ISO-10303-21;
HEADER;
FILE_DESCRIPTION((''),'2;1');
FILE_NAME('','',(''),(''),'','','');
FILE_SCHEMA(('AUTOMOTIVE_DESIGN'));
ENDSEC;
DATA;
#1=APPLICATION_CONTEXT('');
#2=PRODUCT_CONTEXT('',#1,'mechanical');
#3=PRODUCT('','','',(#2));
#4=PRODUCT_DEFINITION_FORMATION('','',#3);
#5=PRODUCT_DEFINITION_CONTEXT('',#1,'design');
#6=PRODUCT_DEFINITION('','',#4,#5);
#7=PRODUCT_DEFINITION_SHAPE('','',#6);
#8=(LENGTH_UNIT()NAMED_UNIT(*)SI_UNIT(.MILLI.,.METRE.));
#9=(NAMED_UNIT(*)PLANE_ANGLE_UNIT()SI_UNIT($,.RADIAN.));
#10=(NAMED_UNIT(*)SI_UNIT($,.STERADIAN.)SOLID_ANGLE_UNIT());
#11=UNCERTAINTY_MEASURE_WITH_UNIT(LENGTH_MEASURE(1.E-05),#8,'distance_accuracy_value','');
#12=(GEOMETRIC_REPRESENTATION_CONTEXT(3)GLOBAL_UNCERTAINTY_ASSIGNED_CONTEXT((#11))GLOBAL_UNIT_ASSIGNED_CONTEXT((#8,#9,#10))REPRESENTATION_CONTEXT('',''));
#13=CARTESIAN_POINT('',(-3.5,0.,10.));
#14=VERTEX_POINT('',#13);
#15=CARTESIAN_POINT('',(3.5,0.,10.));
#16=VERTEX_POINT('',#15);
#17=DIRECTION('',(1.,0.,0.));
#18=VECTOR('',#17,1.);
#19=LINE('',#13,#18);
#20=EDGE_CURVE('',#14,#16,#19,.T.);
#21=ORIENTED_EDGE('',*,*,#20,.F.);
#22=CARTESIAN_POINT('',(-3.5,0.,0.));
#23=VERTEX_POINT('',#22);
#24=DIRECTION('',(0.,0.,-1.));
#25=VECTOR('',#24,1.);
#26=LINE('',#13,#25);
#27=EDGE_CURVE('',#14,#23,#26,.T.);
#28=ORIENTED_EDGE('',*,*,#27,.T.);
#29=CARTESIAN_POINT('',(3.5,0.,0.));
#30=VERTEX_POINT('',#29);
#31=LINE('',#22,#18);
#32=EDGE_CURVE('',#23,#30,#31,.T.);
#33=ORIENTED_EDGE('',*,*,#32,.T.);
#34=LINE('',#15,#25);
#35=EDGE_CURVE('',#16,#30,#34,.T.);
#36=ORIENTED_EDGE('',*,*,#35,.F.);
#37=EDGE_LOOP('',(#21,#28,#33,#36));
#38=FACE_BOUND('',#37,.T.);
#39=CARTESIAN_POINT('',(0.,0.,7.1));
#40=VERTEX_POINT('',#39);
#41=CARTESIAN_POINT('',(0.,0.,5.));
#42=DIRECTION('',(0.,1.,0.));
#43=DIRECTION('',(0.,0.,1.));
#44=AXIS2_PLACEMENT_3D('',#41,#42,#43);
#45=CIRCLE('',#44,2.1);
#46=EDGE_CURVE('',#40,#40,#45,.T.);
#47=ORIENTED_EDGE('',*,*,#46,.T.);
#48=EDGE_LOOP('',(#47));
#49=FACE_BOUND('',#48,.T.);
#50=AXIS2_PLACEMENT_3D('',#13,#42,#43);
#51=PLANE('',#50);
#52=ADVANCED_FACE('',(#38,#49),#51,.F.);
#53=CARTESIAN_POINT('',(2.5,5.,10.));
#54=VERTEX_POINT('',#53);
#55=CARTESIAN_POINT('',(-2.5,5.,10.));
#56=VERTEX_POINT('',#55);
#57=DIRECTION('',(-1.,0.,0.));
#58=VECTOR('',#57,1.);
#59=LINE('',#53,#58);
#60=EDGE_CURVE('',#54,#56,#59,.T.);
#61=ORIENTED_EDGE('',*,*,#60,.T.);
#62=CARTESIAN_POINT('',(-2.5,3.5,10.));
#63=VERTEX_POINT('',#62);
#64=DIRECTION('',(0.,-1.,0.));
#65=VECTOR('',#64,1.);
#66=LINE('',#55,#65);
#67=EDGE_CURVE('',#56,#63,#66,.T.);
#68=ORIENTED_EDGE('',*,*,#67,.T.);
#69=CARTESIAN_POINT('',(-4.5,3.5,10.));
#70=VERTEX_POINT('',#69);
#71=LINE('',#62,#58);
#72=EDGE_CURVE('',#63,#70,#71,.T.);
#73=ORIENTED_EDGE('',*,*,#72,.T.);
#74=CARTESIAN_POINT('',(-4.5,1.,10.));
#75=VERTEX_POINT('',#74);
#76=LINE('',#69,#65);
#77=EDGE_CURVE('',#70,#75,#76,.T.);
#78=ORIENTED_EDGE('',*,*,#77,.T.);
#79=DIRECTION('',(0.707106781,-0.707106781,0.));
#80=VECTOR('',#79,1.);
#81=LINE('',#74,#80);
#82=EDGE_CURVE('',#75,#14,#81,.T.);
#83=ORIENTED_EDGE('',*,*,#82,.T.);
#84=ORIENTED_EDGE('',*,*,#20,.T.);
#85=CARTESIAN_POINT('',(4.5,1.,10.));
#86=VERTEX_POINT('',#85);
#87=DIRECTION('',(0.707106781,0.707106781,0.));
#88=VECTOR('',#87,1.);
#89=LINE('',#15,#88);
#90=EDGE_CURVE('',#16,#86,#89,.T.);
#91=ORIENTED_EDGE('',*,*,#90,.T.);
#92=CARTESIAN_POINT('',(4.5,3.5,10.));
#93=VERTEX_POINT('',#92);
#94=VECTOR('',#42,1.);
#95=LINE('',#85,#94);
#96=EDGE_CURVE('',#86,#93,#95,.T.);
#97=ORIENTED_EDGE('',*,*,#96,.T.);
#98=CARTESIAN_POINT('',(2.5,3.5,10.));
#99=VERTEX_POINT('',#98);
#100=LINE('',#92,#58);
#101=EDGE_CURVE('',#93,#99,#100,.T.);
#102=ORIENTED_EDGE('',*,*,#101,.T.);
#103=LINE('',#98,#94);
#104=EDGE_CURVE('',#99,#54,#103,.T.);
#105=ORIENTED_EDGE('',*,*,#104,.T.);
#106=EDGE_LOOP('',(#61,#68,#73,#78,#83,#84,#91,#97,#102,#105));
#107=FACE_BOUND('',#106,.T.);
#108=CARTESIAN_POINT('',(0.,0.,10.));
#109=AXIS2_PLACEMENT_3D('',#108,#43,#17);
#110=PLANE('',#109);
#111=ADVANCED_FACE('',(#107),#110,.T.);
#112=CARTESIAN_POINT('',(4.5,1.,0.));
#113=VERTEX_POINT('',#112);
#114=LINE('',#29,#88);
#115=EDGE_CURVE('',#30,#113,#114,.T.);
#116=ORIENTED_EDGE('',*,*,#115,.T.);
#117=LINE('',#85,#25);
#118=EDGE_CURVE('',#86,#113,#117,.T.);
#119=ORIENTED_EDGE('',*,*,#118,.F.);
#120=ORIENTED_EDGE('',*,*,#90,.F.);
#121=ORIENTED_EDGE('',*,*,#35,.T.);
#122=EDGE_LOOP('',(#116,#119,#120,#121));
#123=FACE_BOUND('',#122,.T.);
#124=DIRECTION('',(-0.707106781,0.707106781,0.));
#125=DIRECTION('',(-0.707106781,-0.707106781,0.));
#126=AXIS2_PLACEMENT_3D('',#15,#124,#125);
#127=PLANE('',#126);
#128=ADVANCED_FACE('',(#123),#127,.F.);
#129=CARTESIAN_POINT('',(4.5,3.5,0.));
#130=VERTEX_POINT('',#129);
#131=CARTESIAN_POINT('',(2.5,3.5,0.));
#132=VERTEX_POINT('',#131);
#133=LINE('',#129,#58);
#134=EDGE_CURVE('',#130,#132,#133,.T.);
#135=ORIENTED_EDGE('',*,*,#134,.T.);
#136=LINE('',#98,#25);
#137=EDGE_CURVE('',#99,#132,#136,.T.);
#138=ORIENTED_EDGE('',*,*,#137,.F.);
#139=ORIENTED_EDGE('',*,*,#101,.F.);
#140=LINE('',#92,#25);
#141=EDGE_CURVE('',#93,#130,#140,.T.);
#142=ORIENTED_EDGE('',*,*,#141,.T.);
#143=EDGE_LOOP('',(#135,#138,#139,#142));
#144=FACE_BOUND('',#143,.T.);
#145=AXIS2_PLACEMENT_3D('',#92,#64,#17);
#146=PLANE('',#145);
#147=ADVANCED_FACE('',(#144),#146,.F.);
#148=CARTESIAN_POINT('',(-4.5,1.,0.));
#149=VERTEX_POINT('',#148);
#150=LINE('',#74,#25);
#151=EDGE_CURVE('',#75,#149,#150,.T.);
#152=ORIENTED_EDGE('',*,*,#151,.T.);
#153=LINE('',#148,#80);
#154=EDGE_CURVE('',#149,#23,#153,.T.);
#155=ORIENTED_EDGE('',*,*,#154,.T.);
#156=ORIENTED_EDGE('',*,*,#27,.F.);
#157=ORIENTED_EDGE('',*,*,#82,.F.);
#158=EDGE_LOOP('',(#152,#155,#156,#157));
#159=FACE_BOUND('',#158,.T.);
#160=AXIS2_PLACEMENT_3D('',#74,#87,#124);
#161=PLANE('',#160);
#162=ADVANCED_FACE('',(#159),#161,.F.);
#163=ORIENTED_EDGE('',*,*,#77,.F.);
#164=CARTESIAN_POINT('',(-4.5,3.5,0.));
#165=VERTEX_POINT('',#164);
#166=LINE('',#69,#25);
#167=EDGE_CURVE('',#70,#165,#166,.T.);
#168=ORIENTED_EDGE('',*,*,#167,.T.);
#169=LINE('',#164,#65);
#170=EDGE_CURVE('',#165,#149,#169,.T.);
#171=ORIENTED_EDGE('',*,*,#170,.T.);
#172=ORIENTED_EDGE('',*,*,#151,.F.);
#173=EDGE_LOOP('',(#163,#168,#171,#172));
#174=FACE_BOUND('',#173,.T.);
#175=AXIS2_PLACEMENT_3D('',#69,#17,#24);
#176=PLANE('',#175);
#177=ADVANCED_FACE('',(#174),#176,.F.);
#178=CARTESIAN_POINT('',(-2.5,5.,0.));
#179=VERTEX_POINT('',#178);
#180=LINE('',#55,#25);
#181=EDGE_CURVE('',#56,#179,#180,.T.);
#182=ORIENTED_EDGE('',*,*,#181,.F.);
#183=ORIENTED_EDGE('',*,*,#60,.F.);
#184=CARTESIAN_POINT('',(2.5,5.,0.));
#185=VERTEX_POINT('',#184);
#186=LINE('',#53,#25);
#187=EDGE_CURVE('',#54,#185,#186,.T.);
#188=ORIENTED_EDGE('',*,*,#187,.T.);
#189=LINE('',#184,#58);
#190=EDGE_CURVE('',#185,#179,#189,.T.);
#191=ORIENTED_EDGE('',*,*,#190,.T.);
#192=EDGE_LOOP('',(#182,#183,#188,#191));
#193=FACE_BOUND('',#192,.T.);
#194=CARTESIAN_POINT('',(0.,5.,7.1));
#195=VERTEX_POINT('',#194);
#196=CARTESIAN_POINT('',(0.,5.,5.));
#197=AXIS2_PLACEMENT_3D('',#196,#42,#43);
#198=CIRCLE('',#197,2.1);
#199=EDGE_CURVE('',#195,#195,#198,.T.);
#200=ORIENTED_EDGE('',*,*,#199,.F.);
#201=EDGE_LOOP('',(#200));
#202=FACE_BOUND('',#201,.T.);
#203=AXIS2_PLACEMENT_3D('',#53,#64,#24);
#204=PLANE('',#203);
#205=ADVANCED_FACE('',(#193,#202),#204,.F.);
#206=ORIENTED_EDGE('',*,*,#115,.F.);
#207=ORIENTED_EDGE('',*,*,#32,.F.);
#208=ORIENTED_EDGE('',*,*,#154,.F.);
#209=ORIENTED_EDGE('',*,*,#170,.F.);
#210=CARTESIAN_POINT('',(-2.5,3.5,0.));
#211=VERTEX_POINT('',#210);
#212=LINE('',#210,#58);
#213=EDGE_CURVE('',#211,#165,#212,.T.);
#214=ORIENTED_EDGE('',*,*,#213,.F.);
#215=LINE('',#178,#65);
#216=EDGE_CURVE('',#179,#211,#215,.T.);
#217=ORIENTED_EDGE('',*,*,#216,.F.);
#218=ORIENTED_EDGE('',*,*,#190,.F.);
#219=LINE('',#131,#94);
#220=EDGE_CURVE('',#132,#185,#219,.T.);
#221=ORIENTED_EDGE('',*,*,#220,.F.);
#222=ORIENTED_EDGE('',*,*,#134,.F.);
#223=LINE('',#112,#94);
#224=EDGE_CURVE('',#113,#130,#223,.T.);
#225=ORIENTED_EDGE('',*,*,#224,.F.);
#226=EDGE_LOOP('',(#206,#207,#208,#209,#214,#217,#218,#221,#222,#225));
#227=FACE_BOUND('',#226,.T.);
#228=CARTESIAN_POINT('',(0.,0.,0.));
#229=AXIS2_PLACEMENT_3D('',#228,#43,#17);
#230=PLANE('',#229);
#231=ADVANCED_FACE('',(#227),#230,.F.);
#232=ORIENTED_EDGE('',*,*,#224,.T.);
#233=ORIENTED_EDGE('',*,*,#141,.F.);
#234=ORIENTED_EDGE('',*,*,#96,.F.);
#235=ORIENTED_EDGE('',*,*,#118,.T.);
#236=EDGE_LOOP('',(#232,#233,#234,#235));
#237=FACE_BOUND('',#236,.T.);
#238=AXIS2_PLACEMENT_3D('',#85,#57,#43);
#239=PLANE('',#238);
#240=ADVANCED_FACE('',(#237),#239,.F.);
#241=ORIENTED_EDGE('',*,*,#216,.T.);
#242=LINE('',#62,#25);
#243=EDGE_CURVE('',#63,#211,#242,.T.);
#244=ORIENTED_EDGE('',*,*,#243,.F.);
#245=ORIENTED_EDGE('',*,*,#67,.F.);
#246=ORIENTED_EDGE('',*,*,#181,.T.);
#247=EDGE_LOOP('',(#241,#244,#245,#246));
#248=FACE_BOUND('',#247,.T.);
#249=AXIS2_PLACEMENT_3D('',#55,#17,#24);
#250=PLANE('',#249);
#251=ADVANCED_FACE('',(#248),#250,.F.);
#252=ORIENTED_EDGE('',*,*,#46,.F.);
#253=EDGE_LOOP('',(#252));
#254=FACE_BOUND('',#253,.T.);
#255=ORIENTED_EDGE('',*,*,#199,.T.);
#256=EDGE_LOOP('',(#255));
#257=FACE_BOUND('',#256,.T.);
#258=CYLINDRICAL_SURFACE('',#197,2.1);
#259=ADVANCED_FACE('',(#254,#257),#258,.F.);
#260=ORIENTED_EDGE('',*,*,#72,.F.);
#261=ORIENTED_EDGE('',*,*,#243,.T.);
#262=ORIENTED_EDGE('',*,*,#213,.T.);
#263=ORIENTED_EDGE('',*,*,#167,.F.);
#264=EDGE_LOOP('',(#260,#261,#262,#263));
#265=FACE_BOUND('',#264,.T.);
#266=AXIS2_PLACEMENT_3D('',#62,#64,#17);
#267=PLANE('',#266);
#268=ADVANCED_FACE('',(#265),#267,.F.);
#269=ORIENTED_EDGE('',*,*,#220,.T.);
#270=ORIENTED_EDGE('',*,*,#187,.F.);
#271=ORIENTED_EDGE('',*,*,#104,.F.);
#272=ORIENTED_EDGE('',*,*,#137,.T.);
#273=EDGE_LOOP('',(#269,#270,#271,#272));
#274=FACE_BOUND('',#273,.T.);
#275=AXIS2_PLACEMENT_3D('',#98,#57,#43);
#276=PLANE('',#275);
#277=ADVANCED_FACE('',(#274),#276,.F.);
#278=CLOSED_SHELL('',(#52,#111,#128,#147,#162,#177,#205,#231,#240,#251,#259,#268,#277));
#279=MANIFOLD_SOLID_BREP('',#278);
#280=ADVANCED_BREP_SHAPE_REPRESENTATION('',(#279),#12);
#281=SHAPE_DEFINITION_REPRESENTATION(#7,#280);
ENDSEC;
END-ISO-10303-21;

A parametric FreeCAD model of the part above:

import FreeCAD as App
import Part
import Sketcher

V = App.Vector

doc = App.newDocument("Part")
body = doc.addObject("PartDesign::Body", "Body")

# Sketch on XY plane
sketch1 = doc.addObject("Sketcher::SketchObject", "Sketch")
body.addObject(sketch1)
sketch1.AttachmentSupport = (doc.XY_Plane, [""])
sketch1.MapMode = "FlatFace"
sketch1.addGeometry([
    Part.LineSegment(V(-3.5, 0, 0), V(3.5, 0, 0)),  # 0
    Part.LineSegment(V(3.5, 0, 0), V(4.5, 1, 0)),  # 1
    Part.LineSegment(V(4.5, 1, 0), V(4.5, 3.5, 0)),  # 2
    Part.LineSegment(V(4.5, 3.5, 0), V(2.5, 3.5, 0)),  # 3
    Part.LineSegment(V(2.5, 3.5, 0), V(2.5, 5, 0)),  # 4
    Part.LineSegment(V(2.5, 5, 0), V(-2.5, 5, 0)),  # 5
    Part.LineSegment(V(-2.5, 5, 0), V(-2.5, 3.5, 0)),  # 6
    Part.LineSegment(V(-2.5, 3.5, 0), V(-4.5, 3.5, 0)),  # 7
    Part.LineSegment(V(-4.5, 3.5, 0), V(-4.5, 1, 0)),  # 8
    Part.LineSegment(V(-4.5, 1, 0), V(-3.5, 0, 0)),  # 9
], False)
sketch1.addConstraint([
    Sketcher.Constraint("Coincident", 0, 2, 1, 1),
    Sketcher.Constraint("Coincident", 1, 2, 2, 1),
    Sketcher.Constraint("Coincident", 2, 2, 3, 1),
    Sketcher.Constraint("Coincident", 3, 2, 4, 1),
    Sketcher.Constraint("Coincident", 4, 2, 5, 1),
    Sketcher.Constraint("Coincident", 5, 2, 6, 1),
    Sketcher.Constraint("Coincident", 6, 2, 7, 1),
    Sketcher.Constraint("Coincident", 7, 2, 8, 1),
    Sketcher.Constraint("Coincident", 8, 2, 9, 1),
    Sketcher.Constraint("Coincident", 9, 2, 0, 1),
    Sketcher.Constraint("Horizontal", 0),
    Sketcher.Constraint("Vertical", 2),
    Sketcher.Constraint("Horizontal", 3),
    Sketcher.Constraint("Vertical", 4),
    Sketcher.Constraint("Horizontal", 5),
    Sketcher.Constraint("Vertical", 6),
    Sketcher.Constraint("Horizontal", 7),
    Sketcher.Constraint("Vertical", 8),
    Sketcher.Constraint("Symmetric", 0, 2, 9, 2, -1, 1),
    Sketcher.Constraint("Symmetric", 3, 2, 6, 2, -2),
    Sketcher.Constraint("Symmetric", 1, 2, 8, 2, -2),
    Sketcher.Constraint("Perpendicular", 1, 9),
    Sketcher.Constraint("DistanceX", 0, 1, 0, 2, 7.0),
    Sketcher.Constraint("DistanceX", 3, 2, 3, 1, 2.0),
    Sketcher.Constraint("DistanceX", 5, 2, 5, 1, 5.0),
    Sketcher.Constraint("DistanceY", 2, 1, 2, 2, 2.5),
    Sketcher.Constraint("DistanceY", 4, 1, 4, 2, 1.5),
])
pad1 = doc.addObject("PartDesign::Pad", "Pad")
body.addObject(pad1)
pad1.Profile = sketch1
pad1.Length = 10

# Sketch on XZ plane
sketch2 = doc.addObject("Sketcher::SketchObject", "Sketch001")
body.addObject(sketch2)
sketch2.AttachmentSupport = (doc.XZ_Plane, [""])
sketch2.MapMode = "FlatFace"
sketch2.AttachmentOffset = App.Placement(V(0, 0, -5), App.Rotation())
sketch2.addGeometry(Part.Circle(V(0, 5, 0), V(0, 0, 1), 2.1), False)
sketch2.addConstraint([
    Sketcher.Constraint("PointOnObject", 0, 3, -2),
    Sketcher.Constraint("Diameter", 0, 4.2),
    Sketcher.Constraint("DistanceY", -1, 1, 0, 3, 5.0),
])
doc.recompute()
hole = doc.addObject("PartDesign::Hole", "Hole")
body.addObject(hole)
hole.Profile = sketch2
hole.ThreadType = "None"
hole.Diameter = 4.2
hole.DepthType = "ThroughAll"
hole.Reversed = True

doc.recompute()
